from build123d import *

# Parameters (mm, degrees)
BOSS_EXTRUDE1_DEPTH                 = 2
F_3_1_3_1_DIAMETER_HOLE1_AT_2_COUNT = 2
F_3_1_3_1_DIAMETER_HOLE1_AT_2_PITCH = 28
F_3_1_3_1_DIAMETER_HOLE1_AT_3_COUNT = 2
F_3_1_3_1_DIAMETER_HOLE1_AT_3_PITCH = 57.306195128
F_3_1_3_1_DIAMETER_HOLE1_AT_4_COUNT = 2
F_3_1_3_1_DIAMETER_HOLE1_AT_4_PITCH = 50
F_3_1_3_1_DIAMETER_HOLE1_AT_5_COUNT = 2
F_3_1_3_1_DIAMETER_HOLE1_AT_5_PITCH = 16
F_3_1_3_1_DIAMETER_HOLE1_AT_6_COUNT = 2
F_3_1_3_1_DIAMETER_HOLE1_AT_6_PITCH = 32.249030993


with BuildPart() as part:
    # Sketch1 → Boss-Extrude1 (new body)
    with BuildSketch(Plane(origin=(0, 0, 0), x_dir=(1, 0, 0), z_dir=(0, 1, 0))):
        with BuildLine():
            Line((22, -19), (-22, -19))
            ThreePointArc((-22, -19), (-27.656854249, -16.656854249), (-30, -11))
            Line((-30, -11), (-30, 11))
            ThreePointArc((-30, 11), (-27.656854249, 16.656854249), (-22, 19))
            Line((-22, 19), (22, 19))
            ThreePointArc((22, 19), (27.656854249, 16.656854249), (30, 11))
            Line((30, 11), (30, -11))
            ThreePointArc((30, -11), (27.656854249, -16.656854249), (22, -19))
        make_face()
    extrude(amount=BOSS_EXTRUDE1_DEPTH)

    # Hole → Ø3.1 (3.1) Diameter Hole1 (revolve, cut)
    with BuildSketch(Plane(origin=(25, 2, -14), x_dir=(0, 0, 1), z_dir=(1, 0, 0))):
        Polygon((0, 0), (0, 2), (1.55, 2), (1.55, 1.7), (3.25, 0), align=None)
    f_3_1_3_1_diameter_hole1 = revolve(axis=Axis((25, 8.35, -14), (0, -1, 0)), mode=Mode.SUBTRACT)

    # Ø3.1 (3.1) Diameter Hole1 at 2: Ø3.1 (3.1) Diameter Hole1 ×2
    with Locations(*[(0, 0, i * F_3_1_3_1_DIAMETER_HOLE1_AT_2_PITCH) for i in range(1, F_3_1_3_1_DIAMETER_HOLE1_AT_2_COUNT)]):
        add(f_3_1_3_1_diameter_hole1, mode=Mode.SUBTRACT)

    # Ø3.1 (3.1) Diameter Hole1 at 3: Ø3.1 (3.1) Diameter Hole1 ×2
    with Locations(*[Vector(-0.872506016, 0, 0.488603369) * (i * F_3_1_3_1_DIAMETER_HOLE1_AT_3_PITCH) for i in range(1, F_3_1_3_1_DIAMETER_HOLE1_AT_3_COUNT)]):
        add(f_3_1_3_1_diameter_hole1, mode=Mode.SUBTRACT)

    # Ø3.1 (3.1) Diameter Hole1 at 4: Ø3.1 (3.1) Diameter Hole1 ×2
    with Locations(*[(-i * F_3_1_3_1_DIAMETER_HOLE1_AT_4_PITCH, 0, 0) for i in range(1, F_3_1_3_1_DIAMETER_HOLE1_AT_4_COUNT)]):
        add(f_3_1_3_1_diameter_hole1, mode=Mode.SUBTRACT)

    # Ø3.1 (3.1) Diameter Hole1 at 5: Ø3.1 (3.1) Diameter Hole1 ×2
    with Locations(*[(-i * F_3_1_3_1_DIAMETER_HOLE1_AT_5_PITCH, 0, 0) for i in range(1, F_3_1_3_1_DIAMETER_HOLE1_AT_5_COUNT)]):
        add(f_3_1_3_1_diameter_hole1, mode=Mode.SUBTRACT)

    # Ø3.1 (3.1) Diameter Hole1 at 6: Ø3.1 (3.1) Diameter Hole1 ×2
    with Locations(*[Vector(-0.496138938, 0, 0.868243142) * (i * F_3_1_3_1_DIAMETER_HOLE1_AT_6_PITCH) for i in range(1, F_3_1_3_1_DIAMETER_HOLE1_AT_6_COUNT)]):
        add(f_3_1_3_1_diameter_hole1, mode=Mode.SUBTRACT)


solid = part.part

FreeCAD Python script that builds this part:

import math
import FreeCAD as App
import Part
import Sketcher

V = App.Vector
Q = App.Units.Quantity

doc = App.newDocument("Part")
body = doc.addObject("PartDesign::Body", "Body")

sketch1 = body.newObject("Sketcher::SketchObject", "Sketch")
sketch1.AttachmentSupport = (doc.getObject("XZ_Plane"), [""])
sketch1.MapMode = "FlatFace"
sketch1.addGeometry([
    Part.LineSegment(V(-22, 19, 0), V(22, 19, 0)),
    Part.ArcOfCircle(Part.Circle(V(22, 11, 0), V(0, 0, 1), 8), math.radians(0), math.radians(90)),
    Part.LineSegment(V(30, 11, 0), V(30, -11, 0)),
    Part.ArcOfCircle(Part.Circle(V(22, -11, 0), V(0, 0, 1), 8), math.radians(-90), math.radians(0)),
    Part.LineSegment(V(22, -19, 0), V(-22, -19, 0)),
    Part.ArcOfCircle(Part.Circle(V(-22, -11, 0), V(0, 0, 1), 8), math.radians(-180), math.radians(-90)),
    Part.LineSegment(V(-30, -11, 0), V(-30, 11, 0)),
    Part.ArcOfCircle(Part.Circle(V(-22, 11, 0), V(0, 0, 1), 8), math.radians(90), math.radians(180)),
], False)
sketch1.addConstraint([
    Sketcher.Constraint("Tangent", 0, 2, 1, 2),
    Sketcher.Constraint("Tangent", 1, 1, 2, 1),
    Sketcher.Constraint("Tangent", 2, 2, 3, 2),
    Sketcher.Constraint("Tangent", 3, 1, 4, 1),
    Sketcher.Constraint("Tangent", 4, 2, 5, 2),
    Sketcher.Constraint("Tangent", 5, 1, 6, 1),
    Sketcher.Constraint("Tangent", 6, 2, 7, 2),
    Sketcher.Constraint("Tangent", 7, 1, 0, 1),
    Sketcher.Constraint("Horizontal", 0),
    Sketcher.Constraint("Vertical", 2),
    Sketcher.Constraint("Horizontal", 4),
    Sketcher.Constraint("Vertical", 6),
    Sketcher.Constraint("Equal", 1, 3),
    Sketcher.Constraint("Equal", 3, 5),
    Sketcher.Constraint("Equal", 5, 7),
    Sketcher.Constraint("Symmetric", 1, 3, 5, 3, -1, 1),
    Sketcher.Constraint("Radius", 1, 8.0),
    Sketcher.Constraint("DistanceX", 0, 1, 0, 2, 44.0),
    Sketcher.Constraint("DistanceY", 2, 2, 2, 1, 22.0),
])
pad1 = body.newObject("PartDesign::Pad", "Pad")
pad1.Profile = sketch1
pad1.Length = 2
pad1.Reversed = True

sketch2 = body.newObject("Sketcher::SketchObject", "Sketch001")
sketch2.AttachmentSupport = (doc.getObject("YZ_Plane"), [""])
sketch2.MapMode = "FlatFace"
sketch2.AttachmentOffset = App.Placement(V(0, 0, 25), App.Rotation())
sketch2.addGeometry([
    Part.LineSegment(V(0, -14, 0), V(2, -14, 0)),
    Part.LineSegment(V(2, -14, 0), V(2, -10.75, 0)),
    Part.LineSegment(V(2, -10.75, 0), V(0.3, -12.45, 0)),
    Part.LineSegment(V(0.3, -12.45, 0), V(0, -12.45, 0)),
    Part.LineSegment(V(0, -12.45, 0), V(0, -14, 0)),
], False)
sketch2.addGeometry(Part.LineSegment(V(2, -14, 0), V(0, -14, 0)), True)
sketch2.addConstraint([
    Sketcher.Constraint("Coincident", 0, 2, 1, 1),
    Sketcher.Constraint("Coincident", 1, 2, 2, 1),
    Sketcher.Constraint("Coincident", 2, 2, 3, 1),
    Sketcher.Constraint("Coincident", 3, 2, 4, 1),
    Sketcher.Constraint("Coincident", 4, 2, 0, 1),
    Sketcher.Constraint("Horizontal", 0),
    Sketcher.Constraint("Vertical", 1),
    Sketcher.Constraint("Horizontal", 3),
    Sketcher.Constraint("Vertical", 4),
    Sketcher.Constraint("Horizontal", 5),
    Sketcher.Constraint("Coincident", 5, 1, 0, 2),
    Sketcher.Constraint("PointOnObject", 3, 2, -2),
    Sketcher.Constraint("PointOnObject", 5, 2, -2),
    Sketcher.Constraint("DistanceX", 0, 1, 0, 2, 2.0),
    Sketcher.Constraint("Angle", 2, Q("-135 deg")),
    Sketcher.Constraint("DistanceX", 3, 2, 3, 1, 0.3),
    Sketcher.Constraint("DistanceY", 0, 2, -1, 1, 14.0),
    Sketcher.Constraint("DistanceY", 1, 1, 1, 2, 3.25),
])
groove = body.newObject("PartDesign::Groove", "Groove")
groove.Profile = sketch2
groove.ReferenceAxis = (sketch2, ["Axis0"])
groove.Angle = 360
doc.recompute()

linearpattern = body.newObject("PartDesign::LinearPattern", "LinearPattern")
linearpattern.Originals = [groove]
linearpattern.Direction = (doc.getObject("Z_Axis"), [""])
linearpattern.Mode = "offset"
linearpattern.Offset = 28
linearpattern.Occurrences = 2
body.Tip = linearpattern
doc.recompute()

datumline = body.newObject("PartDesign::Line", "DatumLine")
datumline.Placement = App.Placement(V(0, 0, 0), App.Rotation(V(0, 0, 1), V(-0.872506016, 0, 0.488603369)))
linearpattern2 = body.newObject("PartDesign::LinearPattern", "LinearPattern001")
linearpattern2.Originals = [groove]
linearpattern2.Direction = (datumline, [""])
linearpattern2.Mode = "offset"
linearpattern2.Offset = 57.306195
linearpattern2.Occurrences = 2
body.Tip = linearpattern2
doc.recompute()

linearpattern3 = body.newObject("PartDesign::LinearPattern", "LinearPattern002")
linearpattern3.Originals = [groove]
linearpattern3.Direction = (doc.getObject("X_Axis"), [""])
linearpattern3.Mode = "offset"
linearpattern3.Offset = 50
linearpattern3.Occurrences = 2
linearpattern3.Reversed = True
body.Tip = linearpattern3
doc.recompute()

linearpattern4 = body.newObject("PartDesign::LinearPattern", "LinearPattern003")
linearpattern4.Originals = [groove]
linearpattern4.Direction = (doc.getObject("X_Axis"), [""])
linearpattern4.Mode = "offset"
linearpattern4.Offset = 16
linearpattern4.Occurrences = 2
linearpattern4.Reversed = True
body.Tip = linearpattern4
doc.recompute()

datumline2 = body.newObject("PartDesign::Line", "DatumLine001")
datumline2.Placement = App.Placement(V(0, 0, 0), App.Rotation(V(0, 0, 1), V(-0.496138938, 0, 0.868243142)))
linearpattern5 = body.newObject("PartDesign::LinearPattern", "LinearPattern004")
linearpattern5.Originals = [groove]
linearpattern5.Direction = (datumline2, [""])
linearpattern5.Mode = "offset"
linearpattern5.Offset = 32.249031
linearpattern5.Occurrences = 2
body.Tip = linearpattern5

doc.recompute()
